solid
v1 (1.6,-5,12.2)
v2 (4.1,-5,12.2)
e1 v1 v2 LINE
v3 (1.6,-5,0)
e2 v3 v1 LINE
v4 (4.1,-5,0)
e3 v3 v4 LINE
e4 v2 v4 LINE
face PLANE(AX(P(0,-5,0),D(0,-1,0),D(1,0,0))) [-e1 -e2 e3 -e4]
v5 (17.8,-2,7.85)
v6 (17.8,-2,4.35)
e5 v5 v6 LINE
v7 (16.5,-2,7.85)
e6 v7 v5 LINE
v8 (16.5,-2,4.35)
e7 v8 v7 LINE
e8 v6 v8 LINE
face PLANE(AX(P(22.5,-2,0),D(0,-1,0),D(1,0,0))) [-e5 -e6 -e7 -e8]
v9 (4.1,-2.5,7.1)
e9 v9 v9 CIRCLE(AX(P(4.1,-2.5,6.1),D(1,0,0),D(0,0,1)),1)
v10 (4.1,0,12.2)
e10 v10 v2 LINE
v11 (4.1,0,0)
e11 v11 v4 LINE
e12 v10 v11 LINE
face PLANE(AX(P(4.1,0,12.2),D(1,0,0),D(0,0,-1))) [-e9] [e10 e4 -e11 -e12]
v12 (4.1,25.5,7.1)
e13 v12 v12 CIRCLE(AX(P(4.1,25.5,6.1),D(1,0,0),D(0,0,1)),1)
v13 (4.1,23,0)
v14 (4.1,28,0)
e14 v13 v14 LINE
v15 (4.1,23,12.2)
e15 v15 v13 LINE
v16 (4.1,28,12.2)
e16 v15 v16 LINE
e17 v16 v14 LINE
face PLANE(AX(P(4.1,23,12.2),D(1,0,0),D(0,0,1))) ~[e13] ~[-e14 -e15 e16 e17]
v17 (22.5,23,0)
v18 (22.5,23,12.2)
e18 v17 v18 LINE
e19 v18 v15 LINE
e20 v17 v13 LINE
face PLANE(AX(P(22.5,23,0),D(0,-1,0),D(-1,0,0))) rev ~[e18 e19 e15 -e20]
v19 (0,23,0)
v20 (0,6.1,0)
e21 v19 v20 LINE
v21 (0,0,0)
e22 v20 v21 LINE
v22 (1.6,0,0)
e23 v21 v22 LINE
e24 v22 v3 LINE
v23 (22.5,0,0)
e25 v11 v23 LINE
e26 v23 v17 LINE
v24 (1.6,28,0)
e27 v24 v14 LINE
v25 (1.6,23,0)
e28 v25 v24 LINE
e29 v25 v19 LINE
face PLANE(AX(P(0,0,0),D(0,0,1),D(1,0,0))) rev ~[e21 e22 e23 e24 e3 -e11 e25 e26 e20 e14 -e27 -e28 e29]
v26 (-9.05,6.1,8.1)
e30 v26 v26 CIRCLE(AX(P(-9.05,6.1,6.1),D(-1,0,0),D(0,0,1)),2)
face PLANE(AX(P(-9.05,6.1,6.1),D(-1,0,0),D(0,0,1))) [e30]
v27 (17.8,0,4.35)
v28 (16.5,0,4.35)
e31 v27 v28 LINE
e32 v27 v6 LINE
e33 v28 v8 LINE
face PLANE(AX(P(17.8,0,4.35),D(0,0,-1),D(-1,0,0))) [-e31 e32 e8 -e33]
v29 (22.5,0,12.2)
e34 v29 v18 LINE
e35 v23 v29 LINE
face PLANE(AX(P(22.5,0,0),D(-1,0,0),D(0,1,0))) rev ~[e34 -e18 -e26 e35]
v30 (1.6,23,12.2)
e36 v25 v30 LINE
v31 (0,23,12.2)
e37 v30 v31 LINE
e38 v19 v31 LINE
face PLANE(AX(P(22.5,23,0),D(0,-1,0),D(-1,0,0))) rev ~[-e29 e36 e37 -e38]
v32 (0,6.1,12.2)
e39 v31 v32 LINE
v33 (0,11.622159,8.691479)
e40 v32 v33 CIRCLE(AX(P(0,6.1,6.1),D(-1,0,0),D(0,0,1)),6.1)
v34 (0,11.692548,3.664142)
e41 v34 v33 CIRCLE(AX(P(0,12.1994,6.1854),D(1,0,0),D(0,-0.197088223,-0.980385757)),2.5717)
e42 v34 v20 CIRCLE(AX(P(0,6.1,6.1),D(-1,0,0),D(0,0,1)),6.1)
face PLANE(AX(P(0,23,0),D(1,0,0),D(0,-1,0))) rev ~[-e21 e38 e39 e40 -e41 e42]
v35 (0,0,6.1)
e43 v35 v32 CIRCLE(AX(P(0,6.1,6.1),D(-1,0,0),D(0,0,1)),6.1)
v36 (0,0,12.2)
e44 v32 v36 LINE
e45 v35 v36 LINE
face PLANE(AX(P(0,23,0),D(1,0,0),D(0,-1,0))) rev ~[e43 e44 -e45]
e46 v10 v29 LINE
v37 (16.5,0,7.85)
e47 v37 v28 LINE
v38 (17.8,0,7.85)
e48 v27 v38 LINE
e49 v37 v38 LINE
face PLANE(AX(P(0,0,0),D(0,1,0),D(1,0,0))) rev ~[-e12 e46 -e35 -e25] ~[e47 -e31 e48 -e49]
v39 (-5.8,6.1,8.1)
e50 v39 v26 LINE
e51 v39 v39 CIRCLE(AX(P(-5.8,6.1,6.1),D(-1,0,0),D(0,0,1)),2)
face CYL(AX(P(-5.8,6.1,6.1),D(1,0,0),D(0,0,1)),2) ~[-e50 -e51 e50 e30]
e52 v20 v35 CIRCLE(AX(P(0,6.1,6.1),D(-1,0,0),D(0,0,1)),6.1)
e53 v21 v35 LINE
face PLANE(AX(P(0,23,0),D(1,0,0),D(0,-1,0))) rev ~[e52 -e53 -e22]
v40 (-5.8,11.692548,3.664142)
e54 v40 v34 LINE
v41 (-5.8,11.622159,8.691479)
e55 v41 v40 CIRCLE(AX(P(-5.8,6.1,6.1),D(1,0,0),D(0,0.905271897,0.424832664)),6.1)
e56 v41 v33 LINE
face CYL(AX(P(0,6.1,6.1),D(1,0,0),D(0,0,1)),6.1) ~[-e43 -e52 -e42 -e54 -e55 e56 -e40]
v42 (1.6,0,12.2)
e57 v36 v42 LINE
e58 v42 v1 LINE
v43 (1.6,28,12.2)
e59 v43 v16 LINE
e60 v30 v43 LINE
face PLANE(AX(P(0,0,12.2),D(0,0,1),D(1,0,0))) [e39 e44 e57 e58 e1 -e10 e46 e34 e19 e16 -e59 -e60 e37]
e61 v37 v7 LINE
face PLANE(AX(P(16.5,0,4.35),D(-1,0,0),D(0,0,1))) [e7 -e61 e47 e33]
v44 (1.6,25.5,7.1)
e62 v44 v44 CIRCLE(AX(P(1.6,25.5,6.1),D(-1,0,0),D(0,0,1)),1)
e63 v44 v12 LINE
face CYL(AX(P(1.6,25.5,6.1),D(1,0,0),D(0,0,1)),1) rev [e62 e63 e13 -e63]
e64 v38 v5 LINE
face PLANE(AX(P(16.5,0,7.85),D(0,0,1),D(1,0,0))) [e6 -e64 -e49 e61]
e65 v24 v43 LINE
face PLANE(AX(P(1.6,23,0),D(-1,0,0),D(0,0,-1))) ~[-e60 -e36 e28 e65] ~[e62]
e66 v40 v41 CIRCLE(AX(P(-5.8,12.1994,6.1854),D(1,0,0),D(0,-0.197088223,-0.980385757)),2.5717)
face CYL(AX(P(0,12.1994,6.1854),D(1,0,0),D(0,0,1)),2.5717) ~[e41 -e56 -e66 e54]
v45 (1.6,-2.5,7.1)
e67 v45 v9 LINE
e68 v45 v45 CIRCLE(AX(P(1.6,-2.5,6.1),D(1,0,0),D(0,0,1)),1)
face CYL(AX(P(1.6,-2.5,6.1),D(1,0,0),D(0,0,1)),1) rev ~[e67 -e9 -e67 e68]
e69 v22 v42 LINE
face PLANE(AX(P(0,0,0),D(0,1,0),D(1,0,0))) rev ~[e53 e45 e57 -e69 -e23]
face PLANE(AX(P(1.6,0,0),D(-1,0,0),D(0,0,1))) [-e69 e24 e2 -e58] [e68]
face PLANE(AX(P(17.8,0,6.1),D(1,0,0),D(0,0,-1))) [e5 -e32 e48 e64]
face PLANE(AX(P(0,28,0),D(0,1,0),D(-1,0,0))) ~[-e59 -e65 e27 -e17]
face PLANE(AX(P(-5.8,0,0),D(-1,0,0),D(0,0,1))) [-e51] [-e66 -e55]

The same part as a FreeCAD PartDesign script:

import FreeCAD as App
import Part
import Sketcher
from FreeCAD import Vector
Q = App.Units.Quantity

doc = App.newDocument("Part")
body = doc.addObject("PartDesign::Body", "Body")

# Sketch on XY plane
sketch1 = body.newObject("Sketcher::SketchObject", "Sketch")
sketch1.AttachmentSupport = (doc.getObject("XY_Plane"), [""])
sketch1.MapMode = "FlatFace"
sketch1.addGeometry(Part.LineSegment(Vector(0, 23, 0), Vector(0, 0, 0)), False)
sketch1.addGeometry(Part.LineSegment(Vector(0, 0, 0), Vector(22, 0, 0)), False)
sketch1.addGeometry(Part.LineSegment(Vector(22, 0, 0), Vector(22, 23, 0)), False)
sketch1.addGeometry(Part.LineSegment(Vector(22, 23, 0), Vector(0, 23, 0)), False)
sketch1.addConstraint(Sketcher.Constraint("Coincident", 0, 2, 1, 1))
sketch1.addConstraint(Sketcher.Constraint("Coincident", 1, 2, 2, 1))
sketch1.addConstraint(Sketcher.Constraint("Coincident", 2, 2, 3, 1))
sketch1.addConstraint(Sketcher.Constraint("Coincident", 3, 2, 0, 1))
sketch1.addConstraint(Sketcher.Constraint("Vertical", 0))
sketch1.addConstraint(Sketcher.Constraint("Horizontal", 1))
sketch1.addConstraint(Sketcher.Constraint("Vertical", 2))
sketch1.addConstraint(Sketcher.Constraint("Horizontal", 3))
sketch1.addConstraint(Sketcher.Constraint("Coincident", 0, 2, -1, 1))
sketch1.addConstraint(Sketcher.Constraint("DistanceY", 0, 2, 0, 1, Q("23 mm")))
sketch1.addConstraint(Sketcher.Constraint("DistanceX", 1, 1, 1, 2, Q("22.5 mm")))
pad1 = body.newObject("PartDesign::Pad", "Pad")
pad1.Profile = sketch1
pad1.Length = 12.2

# Sketch on XZ plane
sketch2 = body.newObject("Sketcher::SketchObject", "Sketch001")
sketch2.AttachmentSupport = (doc.getObject("XZ_Plane"), [""])
sketch2.MapMode = "FlatFace"
sketch2.addGeometry(Part.LineSegment(Vector(4.1, 12.2, 0), Vector(1.6, 12.2, 0)), False)
sketch2.addGeometry(Part.LineSegment(Vector(1.6, 12.2, 0), Vector(1.6, 0, 0)), False)
sketch2.addGeometry(Part.LineSegment(Vector(1.6, 0, 0), Vector(4.1, 0, 0)), False)
sketch2.addGeometry(Part.LineSegment(Vector(4.1, 0, 0), Vector(4.1, 12.2, 0)), False)
sketch2.addConstraint(Sketcher.Constraint("Coincident", 0, 2, 1, 1))
sketch2.addConstraint(Sketcher.Constraint("Coincident", 1, 2, 2, 1))
sketch2.addConstraint(Sketcher.Constraint("Coincident", 2, 2, 3, 1))
sketch2.addConstraint(Sketcher.Constraint("Coincident", 3, 2, 0, 1))
sketch2.addConstraint(Sketcher.Constraint("Horizontal", 0))
sketch2.addConstraint(Sketcher.Constraint("Vertical", 1))
sketch2.addConstraint(Sketcher.Constraint("Horizontal", 2))
sketch2.addConstraint(Sketcher.Constraint("Vertical", 3))
sketch2.addConstraint(Sketcher.Constraint("PointOnObject", 1, 2, -1))
sketch2.addConstraint(Sketcher.Constraint("DistanceX", 0, 2, 0, 1, Q("2.5 mm")))
sketch2.addConstraint(Sketcher.Constraint("DistanceY", 1, 2, 1, 1, Q("12.2 mm")))
sketch2.addConstraint(Sketcher.Constraint("DistanceX", -1, 1, 0, 2, Q("1.6 mm")))
pad2 = body.newObject("PartDesign::Pad", "Pad001")
pad2.Profile = sketch2
pad2.Length = 5
doc.recompute()

datumplane = body.newObject("PartDesign::Plane", "DatumPlane")
datumplane.AttachmentSupport = (doc.getObject("XZ_Plane"), [""])
datumplane.MapMode = "FlatFace"
datumplane.AttachmentOffset = App.Placement(Vector(0, 0, -11.5), App.Rotation())
mirrored = body.newObject("PartDesign::Mirrored", "Mirrored")
mirrored.Originals = [pad2]
mirrored.MirrorPlane = (datumplane, [""])
body.Tip = mirrored

# Sketch on YZ plane
sketch3 = body.newObject("Sketcher::SketchObject", "Sketch002")
sketch3.AttachmentSupport = (doc.getObject("YZ_Plane"), [""])
sketch3.MapMode = "FlatFace"
sketch3.AttachmentOffset = App.Placement(Vector(0, 0, 1.6), App.Rotation())
sketch3.addGeometry(Part.Circle(Vector(-2.5, 6.1, 0), Vector(0, 0, 1), 1), False)
sketch3.addConstraint(Sketcher.Constraint("Diameter", 0, Q("2 mm")))
sketch3.addConstraint(Sketcher.Constraint("DistanceX", 0, 3, -1, 1, Q("2.5 mm")))
sketch3.addConstraint(Sketcher.Constraint("DistanceY", -1, 1, 0, 3, Q("6.1 mm")))
doc.recompute()
hole = body.newObject("PartDesign::Hole", "Hole")
hole.Profile = sketch3
hole.ThreadType = "None"
hole.Diameter = 2
hole.DepthType = "ThroughAll"
hole.Reversed = True
doc.recompute()

datumplane2 = body.newObject("PartDesign::Plane", "DatumPlane001")
datumplane2.AttachmentSupport = (doc.getObject("XZ_Plane"), [""])
datumplane2.MapMode = "FlatFace"
datumplane2.AttachmentOffset = App.Placement(Vector(0, 0, -11.5), App.Rotation())
mirrored2 = body.newObject("PartDesign::Mirrored", "Mirrored001")
mirrored2.Originals = [hole]
mirrored2.MirrorPlane = (datumplane2, [""])
body.Tip = mirrored2

# Sketch on XZ plane
sketch4 = body.newObject("Sketcher::SketchObject", "Sketch003")
sketch4.AttachmentSupport = (doc.getObject("XZ_Plane"), [""])
sketch4.MapMode = "FlatFace"
sketch4.addGeometry(Part.LineSegment(Vector(16.5, 4.3, 0), Vector(17.8, 4.3, 0)), False)
sketch4.addGeometry(Part.LineSegment(Vector(17.8, 4.3, 0), Vector(17.8, 7.8, 0)), False)
sketch4.addGeometry(Part.LineSegment(Vector(17.8, 7.8, 0), Vector(16.5, 7.8, 0)), False)
sketch4.addGeometry(Part.LineSegment(Vector(16.5, 7.8, 0), Vector(16.5, 4.3, 0)), False)
sketch4.addConstraint(Sketcher.Constraint("Coincident", 0, 2, 1, 1))
sketch4.addConstraint(Sketcher.Constraint("Coincident", 1, 2, 2, 1))
sketch4.addConstraint(Sketcher.Constraint("Coincident", 2, 2, 3, 1))
sketch4.addConstraint(Sketcher.Constraint("Coincident", 3, 2, 0, 1))
sketch4.addConstraint(Sketcher.Constraint("Horizontal", 0))
sketch4.addConstraint(Sketcher.Constraint("Vertical", 1))
sketch4.addConstraint(Sketcher.Constraint("Horizontal", 2))
sketch4.addConstraint(Sketcher.Constraint("Vertical", 3))
sketch4.addConstraint(Sketcher.Constraint("DistanceX", 0, 1, 0, 2, Q("1.3 mm")))
sketch4.addConstraint(Sketcher.Constraint("DistanceY", 1, 1, 1, 2, Q("3.5 mm")))
sketch4.addConstraint(Sketcher.Constraint("DistanceX", -1, 1, 0, 2, Q("17.8 mm")))
sketch4.addConstraint(Sketcher.Constraint("DistanceY", -1, 1, 0, 2, Q("4.35 mm")))
pad3 = body.newObject("PartDesign::Pad", "Pad002")
pad3.Profile = sketch4
pad3.Length = 2

# Sketch on YZ plane
sketch5 = body.newObject("Sketcher::SketchObject", "Sketch004")
sketch5.AttachmentSupport = (doc.getObject("YZ_Plane"), [""])
sketch5.MapMode = "FlatFace"
sketch5.addGeometry(Part.Circle(Vector(6, 6, 0), Vector(0, 0, 1), 6), False)
sketch5.addConstraint(Sketcher.Constraint("Diameter", 0, Q("12.2 mm")))
sketch5.addConstraint(Sketcher.Constraint("DistanceX", -1, 1, 0, 3, Q("6.1 mm")))
sketch5.addConstraint(Sketcher.Constraint("DistanceY", -1, 1, 0, 3, Q("6.1 mm")))
pad4 = body.newObject("PartDesign::Pad", "Pad003")
pad4.Profile = sketch5
pad4.Length = 5.8
pad4.Reversed = True

# Sketch on YZ plane
sketch6 = body.newObject("Sketcher::SketchObject", "Sketch005")
sketch6.AttachmentSupport = (doc.getObject("YZ_Plane"), [""])
sketch6.MapMode = "FlatFace"
sketch6.AttachmentOffset = App.Placement(Vector(0, 0, -5.8), App.Rotation())
sketch6.addGeometry(Part.Circle(Vector(6.1, 6.1, 0), Vector(0, 0, 1), 2), False)
sketch6.addConstraint(Sketcher.Constraint("Diameter", 0, Q("4 mm")))
sketch6.addConstraint(Sketcher.Constraint("DistanceX", -1, 1, 0, 3, Q("6.1 mm")))
sketch6.addConstraint(Sketcher.Constraint("DistanceY", -1, 1, 0, 3, Q("6.1 mm")))
pad5 = body.newObject("PartDesign::Pad", "Pad004")
pad5.Profile = sketch6
pad5.Length = 3.25
pad5.Reversed = True

# Sketch on YZ plane
sketch7 = body.newObject("Sketcher::SketchObject", "Sketch006")
sketch7.AttachmentSupport = (doc.getObject("YZ_Plane"), [""])
sketch7.MapMode = "FlatFace"
sketch7.addGeometry(Part.Circle(Vector(12.2, 6.2, 0), Vector(0, 0, 1), 2.6), False)
sketch7.addConstraint(Sketcher.Constraint("Diameter", 0, Q("5.1434 mm")))
sketch7.addConstraint(Sketcher.Constraint("DistanceX", -1, 1, 0, 3, Q("12.1994 mm")))
sketch7.addConstraint(Sketcher.Constraint("DistanceY", -1, 1, 0, 3, Q("6.1854 mm")))
pad6 = body.newObject("PartDesign::Pad", "Pad005")
pad6.Profile = sketch7
pad6.Length = 5.8
pad6.Reversed = True

doc.recompute()
